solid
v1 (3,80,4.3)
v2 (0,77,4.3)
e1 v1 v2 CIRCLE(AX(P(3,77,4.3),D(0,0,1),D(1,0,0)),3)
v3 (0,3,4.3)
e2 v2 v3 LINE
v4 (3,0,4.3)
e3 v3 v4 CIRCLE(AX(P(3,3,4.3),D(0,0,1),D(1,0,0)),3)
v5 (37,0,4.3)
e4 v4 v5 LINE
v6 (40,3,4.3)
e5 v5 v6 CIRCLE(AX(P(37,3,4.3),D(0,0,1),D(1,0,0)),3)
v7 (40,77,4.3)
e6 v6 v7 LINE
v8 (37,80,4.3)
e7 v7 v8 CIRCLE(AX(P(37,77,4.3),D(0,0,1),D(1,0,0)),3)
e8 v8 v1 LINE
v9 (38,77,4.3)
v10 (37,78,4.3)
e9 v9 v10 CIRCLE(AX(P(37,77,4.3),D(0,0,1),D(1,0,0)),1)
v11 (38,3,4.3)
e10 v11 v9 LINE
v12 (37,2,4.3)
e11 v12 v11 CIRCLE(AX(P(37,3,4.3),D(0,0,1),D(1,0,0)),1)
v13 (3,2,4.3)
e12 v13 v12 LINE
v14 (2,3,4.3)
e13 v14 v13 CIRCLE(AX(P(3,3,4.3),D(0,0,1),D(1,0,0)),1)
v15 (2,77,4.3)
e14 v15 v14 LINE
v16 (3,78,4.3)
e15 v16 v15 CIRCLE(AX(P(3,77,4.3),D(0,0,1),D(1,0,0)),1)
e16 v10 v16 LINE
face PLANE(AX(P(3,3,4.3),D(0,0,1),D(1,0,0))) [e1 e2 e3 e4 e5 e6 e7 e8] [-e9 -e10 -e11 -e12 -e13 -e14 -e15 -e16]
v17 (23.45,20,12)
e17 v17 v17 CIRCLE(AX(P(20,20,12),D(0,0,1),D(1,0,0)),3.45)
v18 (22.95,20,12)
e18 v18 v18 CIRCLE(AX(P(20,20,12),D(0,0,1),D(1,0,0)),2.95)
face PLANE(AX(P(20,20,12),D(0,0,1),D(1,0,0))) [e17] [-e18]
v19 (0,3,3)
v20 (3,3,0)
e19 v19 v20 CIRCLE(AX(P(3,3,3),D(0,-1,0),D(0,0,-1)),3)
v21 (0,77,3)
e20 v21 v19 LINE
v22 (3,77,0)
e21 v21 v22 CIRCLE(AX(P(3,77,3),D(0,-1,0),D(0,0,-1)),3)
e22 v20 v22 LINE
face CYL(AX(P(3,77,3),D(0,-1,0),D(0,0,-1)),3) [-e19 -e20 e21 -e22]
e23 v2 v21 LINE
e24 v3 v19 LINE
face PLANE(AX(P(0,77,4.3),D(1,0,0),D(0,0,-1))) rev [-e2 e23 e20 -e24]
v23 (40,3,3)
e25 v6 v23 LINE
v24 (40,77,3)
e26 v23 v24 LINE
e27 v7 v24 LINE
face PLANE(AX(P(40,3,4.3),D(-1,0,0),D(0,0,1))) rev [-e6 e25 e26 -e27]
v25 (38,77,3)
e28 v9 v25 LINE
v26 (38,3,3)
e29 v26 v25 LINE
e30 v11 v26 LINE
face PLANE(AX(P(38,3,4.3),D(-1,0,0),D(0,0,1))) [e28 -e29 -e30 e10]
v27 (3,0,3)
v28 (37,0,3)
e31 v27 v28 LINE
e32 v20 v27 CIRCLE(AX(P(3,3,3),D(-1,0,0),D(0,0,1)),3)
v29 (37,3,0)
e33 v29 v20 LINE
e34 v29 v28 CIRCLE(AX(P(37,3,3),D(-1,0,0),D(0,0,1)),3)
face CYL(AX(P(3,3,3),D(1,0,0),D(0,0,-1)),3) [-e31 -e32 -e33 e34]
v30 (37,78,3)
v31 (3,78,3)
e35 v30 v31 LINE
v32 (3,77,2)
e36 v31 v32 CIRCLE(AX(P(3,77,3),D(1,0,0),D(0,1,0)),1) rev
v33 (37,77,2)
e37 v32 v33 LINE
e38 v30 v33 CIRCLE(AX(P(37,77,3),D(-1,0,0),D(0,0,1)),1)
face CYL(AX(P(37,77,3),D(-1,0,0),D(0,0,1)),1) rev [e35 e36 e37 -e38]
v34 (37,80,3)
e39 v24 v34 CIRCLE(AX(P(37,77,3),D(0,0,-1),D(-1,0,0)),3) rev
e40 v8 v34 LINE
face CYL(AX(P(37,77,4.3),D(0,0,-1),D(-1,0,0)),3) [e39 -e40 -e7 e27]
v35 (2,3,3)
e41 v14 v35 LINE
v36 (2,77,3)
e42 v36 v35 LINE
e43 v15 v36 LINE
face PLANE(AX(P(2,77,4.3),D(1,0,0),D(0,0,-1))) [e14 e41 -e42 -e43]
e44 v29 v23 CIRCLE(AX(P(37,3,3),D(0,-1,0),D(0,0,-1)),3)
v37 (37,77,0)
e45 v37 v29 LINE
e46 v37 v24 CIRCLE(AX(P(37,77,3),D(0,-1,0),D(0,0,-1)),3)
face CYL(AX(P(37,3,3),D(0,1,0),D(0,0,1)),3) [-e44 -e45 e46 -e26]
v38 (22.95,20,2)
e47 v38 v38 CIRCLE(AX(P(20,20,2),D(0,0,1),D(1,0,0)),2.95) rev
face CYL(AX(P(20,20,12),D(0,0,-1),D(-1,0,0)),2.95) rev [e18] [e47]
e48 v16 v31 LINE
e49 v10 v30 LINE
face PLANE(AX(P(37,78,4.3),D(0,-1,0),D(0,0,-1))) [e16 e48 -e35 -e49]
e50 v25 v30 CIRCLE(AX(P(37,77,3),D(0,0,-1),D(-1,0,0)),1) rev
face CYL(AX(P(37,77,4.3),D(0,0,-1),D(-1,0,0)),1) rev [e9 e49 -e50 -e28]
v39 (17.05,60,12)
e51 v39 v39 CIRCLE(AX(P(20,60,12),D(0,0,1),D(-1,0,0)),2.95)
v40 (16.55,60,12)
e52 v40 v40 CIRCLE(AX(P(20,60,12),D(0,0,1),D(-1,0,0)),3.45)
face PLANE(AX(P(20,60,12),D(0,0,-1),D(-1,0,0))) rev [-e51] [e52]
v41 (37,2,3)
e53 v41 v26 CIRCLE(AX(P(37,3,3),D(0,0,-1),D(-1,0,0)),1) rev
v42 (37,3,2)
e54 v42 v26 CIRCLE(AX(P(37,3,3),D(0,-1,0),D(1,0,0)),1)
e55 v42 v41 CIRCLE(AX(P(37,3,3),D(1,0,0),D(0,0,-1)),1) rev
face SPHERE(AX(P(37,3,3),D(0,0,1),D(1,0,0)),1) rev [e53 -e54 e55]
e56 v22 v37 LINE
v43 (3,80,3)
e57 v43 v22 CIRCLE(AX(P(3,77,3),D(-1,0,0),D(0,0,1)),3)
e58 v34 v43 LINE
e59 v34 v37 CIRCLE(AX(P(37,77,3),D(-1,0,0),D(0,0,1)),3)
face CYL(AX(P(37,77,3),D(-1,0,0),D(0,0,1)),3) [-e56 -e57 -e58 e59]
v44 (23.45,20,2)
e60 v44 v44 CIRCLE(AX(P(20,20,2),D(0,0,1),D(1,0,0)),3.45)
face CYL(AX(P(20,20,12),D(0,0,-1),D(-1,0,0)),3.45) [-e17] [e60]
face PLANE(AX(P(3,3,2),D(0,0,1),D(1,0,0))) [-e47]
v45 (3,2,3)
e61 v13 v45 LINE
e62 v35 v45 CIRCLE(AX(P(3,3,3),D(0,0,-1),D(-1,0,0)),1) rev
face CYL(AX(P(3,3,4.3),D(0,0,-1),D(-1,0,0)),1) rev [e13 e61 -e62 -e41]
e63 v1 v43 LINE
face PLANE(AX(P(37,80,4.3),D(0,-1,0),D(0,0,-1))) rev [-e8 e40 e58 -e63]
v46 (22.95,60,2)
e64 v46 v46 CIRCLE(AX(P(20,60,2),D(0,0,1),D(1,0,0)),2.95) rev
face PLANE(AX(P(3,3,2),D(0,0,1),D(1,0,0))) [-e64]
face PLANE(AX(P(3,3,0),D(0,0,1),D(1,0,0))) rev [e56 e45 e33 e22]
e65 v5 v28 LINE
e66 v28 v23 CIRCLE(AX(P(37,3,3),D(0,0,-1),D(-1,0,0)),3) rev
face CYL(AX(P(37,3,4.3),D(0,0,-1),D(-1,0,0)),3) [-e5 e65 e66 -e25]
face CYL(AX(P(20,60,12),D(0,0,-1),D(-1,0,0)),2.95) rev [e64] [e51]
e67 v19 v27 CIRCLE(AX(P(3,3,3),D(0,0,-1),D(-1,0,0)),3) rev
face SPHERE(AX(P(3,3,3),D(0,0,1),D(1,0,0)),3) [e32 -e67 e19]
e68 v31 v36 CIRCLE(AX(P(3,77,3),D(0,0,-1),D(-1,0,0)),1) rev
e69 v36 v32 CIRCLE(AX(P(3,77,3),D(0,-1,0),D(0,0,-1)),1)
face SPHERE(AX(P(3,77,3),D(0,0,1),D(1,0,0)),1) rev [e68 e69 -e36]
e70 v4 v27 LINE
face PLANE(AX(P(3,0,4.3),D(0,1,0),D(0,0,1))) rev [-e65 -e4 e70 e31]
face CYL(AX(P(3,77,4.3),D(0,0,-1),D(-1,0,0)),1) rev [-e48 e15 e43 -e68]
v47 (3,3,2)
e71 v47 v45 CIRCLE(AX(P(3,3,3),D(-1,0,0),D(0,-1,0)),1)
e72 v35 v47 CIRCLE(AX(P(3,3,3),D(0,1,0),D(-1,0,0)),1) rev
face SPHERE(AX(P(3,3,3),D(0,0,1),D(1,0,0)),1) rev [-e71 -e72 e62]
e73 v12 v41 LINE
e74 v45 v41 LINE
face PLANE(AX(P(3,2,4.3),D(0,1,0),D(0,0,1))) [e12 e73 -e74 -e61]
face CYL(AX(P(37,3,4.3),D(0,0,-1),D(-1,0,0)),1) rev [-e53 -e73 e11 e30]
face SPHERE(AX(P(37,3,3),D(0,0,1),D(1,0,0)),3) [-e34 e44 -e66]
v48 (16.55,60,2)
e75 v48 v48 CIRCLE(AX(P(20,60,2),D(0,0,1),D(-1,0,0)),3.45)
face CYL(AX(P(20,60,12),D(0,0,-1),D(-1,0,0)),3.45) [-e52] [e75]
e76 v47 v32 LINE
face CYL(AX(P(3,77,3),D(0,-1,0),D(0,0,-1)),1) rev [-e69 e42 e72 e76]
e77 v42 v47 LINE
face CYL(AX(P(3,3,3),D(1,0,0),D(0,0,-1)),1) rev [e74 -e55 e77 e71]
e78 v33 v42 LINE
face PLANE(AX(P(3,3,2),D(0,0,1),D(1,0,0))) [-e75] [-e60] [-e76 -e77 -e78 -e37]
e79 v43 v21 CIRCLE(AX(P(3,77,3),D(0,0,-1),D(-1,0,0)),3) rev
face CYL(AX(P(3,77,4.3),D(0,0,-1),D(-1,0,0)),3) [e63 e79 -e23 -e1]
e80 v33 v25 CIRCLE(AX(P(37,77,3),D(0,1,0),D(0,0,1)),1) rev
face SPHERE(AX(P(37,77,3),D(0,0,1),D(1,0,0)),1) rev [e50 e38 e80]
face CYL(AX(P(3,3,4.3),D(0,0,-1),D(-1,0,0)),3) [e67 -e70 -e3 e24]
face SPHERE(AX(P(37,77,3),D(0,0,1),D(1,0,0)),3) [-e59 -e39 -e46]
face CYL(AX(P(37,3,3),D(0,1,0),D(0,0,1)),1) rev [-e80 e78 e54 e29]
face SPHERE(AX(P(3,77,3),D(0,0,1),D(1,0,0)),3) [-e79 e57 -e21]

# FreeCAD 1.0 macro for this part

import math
import FreeCAD as App
import Part
import Sketcher
from FreeCAD import Vector


def edges_at(feature, points):
    """Names of the edges that pass closest to the given points."""
    edges = feature.Shape.Edges
    near = lambda p: min(range(len(edges)), key=lambda i: edges[i].distToShape(Part.Vertex(*p))[0])
    return sorted({f"Edge{near(p) + 1}" for p in points})


def faces_at(feature, points):
    """Names of the faces that lie closest to the given points."""
    faces = feature.Shape.Faces
    near = lambda p: min(range(len(faces)), key=lambda i: faces[i].distToShape(Part.Vertex(*p))[0])
    return sorted({f"Face{near(p) + 1}" for p in points})

doc = App.newDocument("Part")
body = doc.addObject("PartDesign::Body", "Body")

sketch1 = doc.addObject("Sketcher::SketchObject", "Sketch")
body.addObject(sketch1)
sketch1.AttachmentSupport = (doc.XY_Plane, [""])
sketch1.MapMode = "FlatFace"
sketch1.addGeometry([
    Part.LineSegment(Vector(3, 0, 0), Vector(37, 0, 0)),
    Part.ArcOfCircle(Part.Circle(Vector(37, 3, 0), Vector(0, 0, 1), 3), math.radians(-90), math.radians(0)),
    Part.LineSegment(Vector(40, 3, 0), Vector(40, 77, 0)),
    Part.ArcOfCircle(Part.Circle(Vector(37, 77, 0), Vector(0, 0, 1), 3), math.radians(0), math.radians(90)),
    Part.LineSegment(Vector(37, 80, 0), Vector(3, 80, 0)),
    Part.ArcOfCircle(Part.Circle(Vector(3, 77, 0), Vector(0, 0, 1), 3), math.radians(90), math.radians(180)),
    Part.LineSegment(Vector(0, 77, 0), Vector(0, 3, 0)),
    Part.ArcOfCircle(Part.Circle(Vector(3, 3, 0), Vector(0, 0, 1), 3), math.radians(180), math.radians(270)),
], False)
sketch1.addConstraint([
    Sketcher.Constraint("Tangent", 0, 2, 1, 1),
    Sketcher.Constraint("Tangent", 1, 2, 2, 1),
    Sketcher.Constraint("Tangent", 2, 2, 3, 1),
    Sketcher.Constraint("Tangent", 3, 2, 4, 1),
    Sketcher.Constraint("Tangent", 4, 2, 5, 1),
    Sketcher.Constraint("Tangent", 5, 2, 6, 1),
    Sketcher.Constraint("Tangent", 6, 2, 7, 1),
    Sketcher.Constraint("Tangent", 7, 2, 0, 1),
    Sketcher.Constraint("Horizontal", 0),
    Sketcher.Constraint("Vertical", 2),
    Sketcher.Constraint("Horizontal", 4),
    Sketcher.Constraint("Vertical", 6),
    Sketcher.Constraint("Equal", 1, 3),
    Sketcher.Constraint("Equal", 3, 5),
    Sketcher.Constraint("Equal", 5, 7),
    Sketcher.Constraint("PointOnObject", 0, 2, -1),
    Sketcher.Constraint("PointOnObject", 5, 2, -2),
    Sketcher.Constraint("Radius", 1, 3.0),
    Sketcher.Constraint("DistanceX", 0, 1, 0, 2, 34.0),
    Sketcher.Constraint("DistanceY", 2, 1, 2, 2, 74.0),
])
pad1 = doc.addObject("PartDesign::Pad", "Pad")
body.addObject(pad1)
pad1.Profile = sketch1
pad1.Length = 4.3
doc.recompute()

fillet = doc.addObject("PartDesign::Fillet", "Fillet")
body.addObject(fillet)
fillet.Base = (pad1, edges_at(pad1, [
    (20, 0, 0),
    (0.879, 0.879, 0),
    (0, 40, 0),
    (0.879, 79.121, 0),
    (20, 80, 0),
    (39.121, 79.121, 0),
    (40, 40, 0),
    (39.121, 0.879, 0),
]))
fillet.Radius = 3
doc.recompute()

thickness = doc.addObject("PartDesign::Thickness", "Thickness")
body.addObject(thickness)
thickness.Base = (fillet, faces_at(fillet, [(20, 40, 4.3)]))
thickness.Value = 2
thickness.Reversed = True
thickness.Join = "Intersection"

sketch2 = doc.addObject("Sketcher::SketchObject", "Sketch001")
body.addObject(sketch2)
sketch2.AttachmentSupport = (doc.XY_Plane, [""])
sketch2.MapMode = "FlatFace"
sketch2.AttachmentOffset = App.Placement(Vector(0, 0, 2), App.Rotation())
sketch2.addGeometry([
    Part.Circle(Vector(20, 20, 0), Vector(0, 0, 1), 3.5),
    Part.Circle(Vector(20, 20, 0), Vector(0, 0, 1), 3),
    Part.Circle(Vector(20, 60, 0), Vector(0, 0, 1), 3.5),
    Part.Circle(Vector(20, 60, 0), Vector(0, 0, 1), 3),
], False)
sketch2.addConstraint([
    Sketcher.Constraint("Coincident", 1, 3, 0, 3),
    Sketcher.Constraint("Coincident", 3, 3, 2, 3),
    Sketcher.Constraint("Equal", 0, 2),
    Sketcher.Constraint("Equal", 1, 3),
    Sketcher.Constraint("Vertical", 1, 3, 2, 3),
    Sketcher.Constraint("Diameter", 0, 6.9),
    Sketcher.Constraint("Diameter", 1, 5.9),
    Sketcher.Constraint("DistanceX", -1, 1, 0, 3, 20.0),
    Sketcher.Constraint("DistanceY", -1, 1, 0, 3, 20.0),
    Sketcher.Constraint("DistanceY", -1, 1, 2, 3, 60.0),
])
pad2 = doc.addObject("PartDesign::Pad", "Pad001")
body.addObject(pad2)
pad2.Profile = sketch2
pad2.Length = 10

doc.recompute()
